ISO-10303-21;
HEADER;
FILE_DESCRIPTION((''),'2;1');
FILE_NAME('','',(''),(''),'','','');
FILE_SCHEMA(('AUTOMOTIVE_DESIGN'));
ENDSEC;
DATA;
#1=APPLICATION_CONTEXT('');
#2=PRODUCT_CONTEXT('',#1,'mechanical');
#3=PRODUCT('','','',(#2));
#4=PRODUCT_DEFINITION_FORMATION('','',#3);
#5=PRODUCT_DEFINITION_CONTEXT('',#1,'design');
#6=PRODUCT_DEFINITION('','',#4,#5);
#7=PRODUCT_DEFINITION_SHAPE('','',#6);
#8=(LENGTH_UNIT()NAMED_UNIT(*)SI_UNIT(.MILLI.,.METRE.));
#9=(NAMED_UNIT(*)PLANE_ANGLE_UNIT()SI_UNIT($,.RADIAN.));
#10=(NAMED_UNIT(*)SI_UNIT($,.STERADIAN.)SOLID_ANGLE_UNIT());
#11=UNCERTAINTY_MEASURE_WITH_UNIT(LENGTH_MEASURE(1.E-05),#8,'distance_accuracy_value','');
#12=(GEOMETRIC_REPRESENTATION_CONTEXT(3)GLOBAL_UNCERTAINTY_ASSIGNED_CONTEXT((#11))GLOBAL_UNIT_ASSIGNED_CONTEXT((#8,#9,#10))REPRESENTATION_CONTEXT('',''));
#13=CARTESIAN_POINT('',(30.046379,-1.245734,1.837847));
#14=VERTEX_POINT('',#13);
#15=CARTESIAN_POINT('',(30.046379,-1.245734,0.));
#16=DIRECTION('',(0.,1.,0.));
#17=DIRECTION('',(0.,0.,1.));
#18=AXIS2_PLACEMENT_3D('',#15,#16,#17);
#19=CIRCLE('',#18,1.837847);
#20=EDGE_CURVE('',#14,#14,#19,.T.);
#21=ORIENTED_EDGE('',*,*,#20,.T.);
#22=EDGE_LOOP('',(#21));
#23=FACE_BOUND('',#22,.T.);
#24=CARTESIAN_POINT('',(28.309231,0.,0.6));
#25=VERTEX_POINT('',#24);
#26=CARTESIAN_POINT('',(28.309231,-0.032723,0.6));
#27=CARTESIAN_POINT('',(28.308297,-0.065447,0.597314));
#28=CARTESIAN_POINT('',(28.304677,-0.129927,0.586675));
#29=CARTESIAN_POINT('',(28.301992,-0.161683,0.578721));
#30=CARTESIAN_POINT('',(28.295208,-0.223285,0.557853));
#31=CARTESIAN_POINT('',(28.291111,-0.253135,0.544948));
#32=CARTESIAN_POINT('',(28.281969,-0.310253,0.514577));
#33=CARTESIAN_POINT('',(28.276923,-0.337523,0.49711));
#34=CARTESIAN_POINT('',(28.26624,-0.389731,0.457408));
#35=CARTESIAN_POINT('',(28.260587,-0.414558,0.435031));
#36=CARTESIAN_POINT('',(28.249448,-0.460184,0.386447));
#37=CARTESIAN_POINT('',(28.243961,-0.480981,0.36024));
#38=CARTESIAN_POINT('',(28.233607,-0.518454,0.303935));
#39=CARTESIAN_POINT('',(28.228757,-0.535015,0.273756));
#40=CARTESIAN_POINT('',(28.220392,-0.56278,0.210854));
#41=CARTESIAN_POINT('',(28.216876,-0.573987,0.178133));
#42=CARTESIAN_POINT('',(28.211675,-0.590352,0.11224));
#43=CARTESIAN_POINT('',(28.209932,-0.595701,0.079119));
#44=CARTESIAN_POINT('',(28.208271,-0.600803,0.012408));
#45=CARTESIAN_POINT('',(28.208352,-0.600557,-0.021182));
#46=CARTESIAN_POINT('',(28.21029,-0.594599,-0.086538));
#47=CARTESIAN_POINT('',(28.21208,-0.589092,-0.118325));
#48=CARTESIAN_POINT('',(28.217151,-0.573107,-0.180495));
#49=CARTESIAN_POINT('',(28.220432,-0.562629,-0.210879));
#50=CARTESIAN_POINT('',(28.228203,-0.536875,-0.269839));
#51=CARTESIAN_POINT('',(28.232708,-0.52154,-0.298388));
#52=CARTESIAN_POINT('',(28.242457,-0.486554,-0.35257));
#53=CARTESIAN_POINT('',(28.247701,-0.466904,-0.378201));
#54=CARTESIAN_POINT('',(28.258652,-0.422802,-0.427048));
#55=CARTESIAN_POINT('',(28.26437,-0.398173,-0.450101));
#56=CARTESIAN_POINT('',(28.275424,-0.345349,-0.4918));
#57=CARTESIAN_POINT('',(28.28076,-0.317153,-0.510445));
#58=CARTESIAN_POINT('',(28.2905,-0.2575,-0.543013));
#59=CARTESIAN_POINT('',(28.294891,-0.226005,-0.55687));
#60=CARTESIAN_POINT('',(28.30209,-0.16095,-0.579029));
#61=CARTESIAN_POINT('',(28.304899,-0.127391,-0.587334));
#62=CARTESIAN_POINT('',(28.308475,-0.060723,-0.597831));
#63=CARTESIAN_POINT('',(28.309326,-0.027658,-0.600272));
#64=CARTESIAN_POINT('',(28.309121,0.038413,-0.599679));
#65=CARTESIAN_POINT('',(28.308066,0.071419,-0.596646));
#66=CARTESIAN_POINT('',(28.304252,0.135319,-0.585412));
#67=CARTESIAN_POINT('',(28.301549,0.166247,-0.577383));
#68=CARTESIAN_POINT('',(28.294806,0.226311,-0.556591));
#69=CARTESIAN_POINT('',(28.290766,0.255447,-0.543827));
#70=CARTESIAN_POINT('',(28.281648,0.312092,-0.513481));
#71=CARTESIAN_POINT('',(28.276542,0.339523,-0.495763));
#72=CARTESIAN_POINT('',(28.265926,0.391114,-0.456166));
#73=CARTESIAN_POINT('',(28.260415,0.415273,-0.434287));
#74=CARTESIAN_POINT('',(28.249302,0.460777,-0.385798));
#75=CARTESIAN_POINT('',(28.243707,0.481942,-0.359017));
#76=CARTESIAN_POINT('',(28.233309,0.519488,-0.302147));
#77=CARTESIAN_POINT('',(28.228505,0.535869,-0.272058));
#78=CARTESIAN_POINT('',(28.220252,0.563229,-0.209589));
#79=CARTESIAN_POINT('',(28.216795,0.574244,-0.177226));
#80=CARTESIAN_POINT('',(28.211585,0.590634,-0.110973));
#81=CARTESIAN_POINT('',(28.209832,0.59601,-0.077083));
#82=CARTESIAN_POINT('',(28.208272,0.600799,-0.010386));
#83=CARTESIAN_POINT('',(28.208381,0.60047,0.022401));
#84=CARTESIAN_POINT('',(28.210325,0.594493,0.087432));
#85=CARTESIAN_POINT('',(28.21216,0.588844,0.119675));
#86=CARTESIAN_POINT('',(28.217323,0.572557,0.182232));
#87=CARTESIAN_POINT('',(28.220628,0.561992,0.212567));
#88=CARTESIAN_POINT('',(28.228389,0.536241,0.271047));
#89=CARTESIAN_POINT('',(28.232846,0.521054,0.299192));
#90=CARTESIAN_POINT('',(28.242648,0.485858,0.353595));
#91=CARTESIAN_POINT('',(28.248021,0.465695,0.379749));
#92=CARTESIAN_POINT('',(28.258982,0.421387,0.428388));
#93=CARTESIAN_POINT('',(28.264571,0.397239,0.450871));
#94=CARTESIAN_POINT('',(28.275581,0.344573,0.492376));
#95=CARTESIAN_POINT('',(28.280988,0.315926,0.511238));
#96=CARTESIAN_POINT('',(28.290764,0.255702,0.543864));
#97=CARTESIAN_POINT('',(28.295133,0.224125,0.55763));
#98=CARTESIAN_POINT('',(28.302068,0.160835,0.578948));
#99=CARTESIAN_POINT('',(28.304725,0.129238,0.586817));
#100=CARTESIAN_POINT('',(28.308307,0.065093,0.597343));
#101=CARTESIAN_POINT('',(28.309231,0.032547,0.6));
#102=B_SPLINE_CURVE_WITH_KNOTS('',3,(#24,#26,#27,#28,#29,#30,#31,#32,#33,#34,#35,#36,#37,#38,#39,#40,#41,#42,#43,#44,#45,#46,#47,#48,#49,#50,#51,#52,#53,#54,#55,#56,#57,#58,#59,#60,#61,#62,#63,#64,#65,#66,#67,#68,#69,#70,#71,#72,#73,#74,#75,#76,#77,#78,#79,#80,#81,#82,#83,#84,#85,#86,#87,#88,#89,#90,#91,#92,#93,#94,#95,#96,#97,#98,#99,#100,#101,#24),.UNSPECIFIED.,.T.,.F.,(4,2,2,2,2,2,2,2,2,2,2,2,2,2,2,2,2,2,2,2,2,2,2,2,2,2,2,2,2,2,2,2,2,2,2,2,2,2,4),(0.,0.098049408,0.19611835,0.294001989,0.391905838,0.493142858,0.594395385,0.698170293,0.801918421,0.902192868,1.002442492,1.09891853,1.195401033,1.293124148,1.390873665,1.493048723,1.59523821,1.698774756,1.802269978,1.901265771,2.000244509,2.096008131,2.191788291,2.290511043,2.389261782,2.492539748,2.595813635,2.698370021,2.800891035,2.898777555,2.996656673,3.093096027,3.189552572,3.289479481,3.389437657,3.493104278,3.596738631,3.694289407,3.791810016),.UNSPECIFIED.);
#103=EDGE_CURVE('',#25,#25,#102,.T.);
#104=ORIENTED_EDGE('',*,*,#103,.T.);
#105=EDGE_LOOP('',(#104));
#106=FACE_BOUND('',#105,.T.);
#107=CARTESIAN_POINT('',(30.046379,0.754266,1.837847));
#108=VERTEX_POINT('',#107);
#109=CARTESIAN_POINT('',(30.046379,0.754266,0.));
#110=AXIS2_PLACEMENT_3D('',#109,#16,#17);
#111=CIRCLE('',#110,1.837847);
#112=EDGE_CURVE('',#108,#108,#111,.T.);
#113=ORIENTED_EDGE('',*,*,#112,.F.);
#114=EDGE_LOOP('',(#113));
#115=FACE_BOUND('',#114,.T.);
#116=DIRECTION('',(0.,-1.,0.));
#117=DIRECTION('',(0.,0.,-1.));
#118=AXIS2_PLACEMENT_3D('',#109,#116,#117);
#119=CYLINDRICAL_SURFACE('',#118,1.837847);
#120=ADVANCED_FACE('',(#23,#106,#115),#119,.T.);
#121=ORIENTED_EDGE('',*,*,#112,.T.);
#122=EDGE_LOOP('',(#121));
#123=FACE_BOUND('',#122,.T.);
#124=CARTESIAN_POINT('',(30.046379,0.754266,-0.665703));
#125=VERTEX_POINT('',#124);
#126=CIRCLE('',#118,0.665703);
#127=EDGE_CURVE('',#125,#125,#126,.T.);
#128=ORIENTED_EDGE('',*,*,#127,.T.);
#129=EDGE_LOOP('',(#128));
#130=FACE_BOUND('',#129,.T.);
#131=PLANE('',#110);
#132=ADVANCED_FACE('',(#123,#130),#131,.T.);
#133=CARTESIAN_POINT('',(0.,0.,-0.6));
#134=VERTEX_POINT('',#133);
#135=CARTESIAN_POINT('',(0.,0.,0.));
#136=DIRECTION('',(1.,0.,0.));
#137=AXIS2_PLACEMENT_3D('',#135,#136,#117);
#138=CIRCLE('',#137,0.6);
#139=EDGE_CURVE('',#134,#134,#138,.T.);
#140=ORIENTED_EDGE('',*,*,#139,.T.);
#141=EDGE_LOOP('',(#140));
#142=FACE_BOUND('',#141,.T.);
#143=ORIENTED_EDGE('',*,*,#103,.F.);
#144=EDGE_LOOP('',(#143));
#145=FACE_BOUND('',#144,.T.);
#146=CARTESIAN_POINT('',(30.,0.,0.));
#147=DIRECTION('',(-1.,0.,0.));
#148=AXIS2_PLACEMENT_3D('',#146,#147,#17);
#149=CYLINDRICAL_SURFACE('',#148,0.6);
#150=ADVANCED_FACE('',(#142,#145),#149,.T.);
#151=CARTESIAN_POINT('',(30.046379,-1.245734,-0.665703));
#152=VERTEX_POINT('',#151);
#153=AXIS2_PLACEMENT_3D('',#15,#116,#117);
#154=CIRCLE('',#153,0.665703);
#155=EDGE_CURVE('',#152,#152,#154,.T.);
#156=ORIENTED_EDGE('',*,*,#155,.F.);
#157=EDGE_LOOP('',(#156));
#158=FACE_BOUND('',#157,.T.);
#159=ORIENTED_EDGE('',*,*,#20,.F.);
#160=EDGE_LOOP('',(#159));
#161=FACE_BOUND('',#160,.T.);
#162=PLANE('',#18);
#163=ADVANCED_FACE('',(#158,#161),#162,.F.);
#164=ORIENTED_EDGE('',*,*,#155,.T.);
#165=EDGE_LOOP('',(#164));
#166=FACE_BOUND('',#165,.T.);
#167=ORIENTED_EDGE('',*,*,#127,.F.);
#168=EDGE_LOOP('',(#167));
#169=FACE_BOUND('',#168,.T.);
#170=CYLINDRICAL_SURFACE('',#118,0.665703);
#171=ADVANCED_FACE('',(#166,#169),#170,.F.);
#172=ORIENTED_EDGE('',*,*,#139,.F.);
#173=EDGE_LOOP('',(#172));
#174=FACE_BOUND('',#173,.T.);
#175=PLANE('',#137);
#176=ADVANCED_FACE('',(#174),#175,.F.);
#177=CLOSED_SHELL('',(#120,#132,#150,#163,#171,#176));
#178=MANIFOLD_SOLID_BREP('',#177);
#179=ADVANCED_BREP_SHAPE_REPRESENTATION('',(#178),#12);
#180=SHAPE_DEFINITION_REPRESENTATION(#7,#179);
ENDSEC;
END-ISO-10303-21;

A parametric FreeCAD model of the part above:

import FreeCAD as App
import Part
import Sketcher

V = App.Vector
Q = App.Units.Quantity

doc = App.newDocument("Part")
body = doc.addObject("PartDesign::Body", "Body")

# Sketch on YZ plane
sketch1 = body.newObject("Sketcher::SketchObject", "Sketch")
sketch1.AttachmentSupport = (doc.getObject("YZ_Plane"), [""])
sketch1.MapMode = "FlatFace"
sketch1.addGeometry(Part.Circle(V(0, 0, 0), V(0, 0, 1), 0.6), False)
sketch1.addConstraint(Sketcher.Constraint("Coincident", 0, 3, -1, 1))
sketch1.addConstraint(Sketcher.Constraint("Diameter", 0, Q("1.2 mm")))
pad1 = body.newObject("PartDesign::Pad", "Pad")
pad1.Profile = sketch1
pad1.Length = 30

# Sketch on XZ plane
sketch2 = body.newObject("Sketcher::SketchObject", "Sketch001")
sketch2.AttachmentSupport = (doc.getObject("XZ_Plane"), [""])
sketch2.MapMode = "FlatFace"
sketch2.AttachmentOffset = App.Placement(V(0, 0, 0.245734), App.Rotation())
sketch2.addGeometry(Part.Circle(V(30, 0, 0), V(0, 0, 1), 1.8), False)
sketch2.addConstraint(Sketcher.Constraint("PointOnObject", 0, 3, -1))
sketch2.addConstraint(Sketcher.Constraint("Diameter", 0, Q("3.675695 mm")))
sketch2.addConstraint(Sketcher.Constraint("DistanceX", -1, 1, 0, 3, Q("30.046379 mm")))
pad2 = body.newObject("PartDesign::Pad", "Pad001")
pad2.Profile = sketch2
pad2.Length = 2
pad2.Midplane = True

# Sketch on XZ plane
sketch3 = body.newObject("Sketcher::SketchObject", "Sketch002")
sketch3.AttachmentSupport = (doc.getObject("XZ_Plane"), [""])
sketch3.MapMode = "FlatFace"
sketch3.AttachmentOffset = App.Placement(V(0, 0, 1.245734), App.Rotation())
sketch3.addGeometry(Part.Circle(V(30, 0, 0), V(0, 0, 1), 0.7), False)
sketch3.addConstraint(Sketcher.Constraint("PointOnObject", 0, 3, -1))
sketch3.addConstraint(Sketcher.Constraint("Diameter", 0, Q("1.331407 mm")))
sketch3.addConstraint(Sketcher.Constraint("DistanceX", -1, 1, 0, 3, Q("30.046379 mm")))
pocket1 = body.newObject("PartDesign::Pocket", "Pocket")
pocket1.Profile = sketch3
pocket1.Type = "ThroughAll"

doc.recompute()
